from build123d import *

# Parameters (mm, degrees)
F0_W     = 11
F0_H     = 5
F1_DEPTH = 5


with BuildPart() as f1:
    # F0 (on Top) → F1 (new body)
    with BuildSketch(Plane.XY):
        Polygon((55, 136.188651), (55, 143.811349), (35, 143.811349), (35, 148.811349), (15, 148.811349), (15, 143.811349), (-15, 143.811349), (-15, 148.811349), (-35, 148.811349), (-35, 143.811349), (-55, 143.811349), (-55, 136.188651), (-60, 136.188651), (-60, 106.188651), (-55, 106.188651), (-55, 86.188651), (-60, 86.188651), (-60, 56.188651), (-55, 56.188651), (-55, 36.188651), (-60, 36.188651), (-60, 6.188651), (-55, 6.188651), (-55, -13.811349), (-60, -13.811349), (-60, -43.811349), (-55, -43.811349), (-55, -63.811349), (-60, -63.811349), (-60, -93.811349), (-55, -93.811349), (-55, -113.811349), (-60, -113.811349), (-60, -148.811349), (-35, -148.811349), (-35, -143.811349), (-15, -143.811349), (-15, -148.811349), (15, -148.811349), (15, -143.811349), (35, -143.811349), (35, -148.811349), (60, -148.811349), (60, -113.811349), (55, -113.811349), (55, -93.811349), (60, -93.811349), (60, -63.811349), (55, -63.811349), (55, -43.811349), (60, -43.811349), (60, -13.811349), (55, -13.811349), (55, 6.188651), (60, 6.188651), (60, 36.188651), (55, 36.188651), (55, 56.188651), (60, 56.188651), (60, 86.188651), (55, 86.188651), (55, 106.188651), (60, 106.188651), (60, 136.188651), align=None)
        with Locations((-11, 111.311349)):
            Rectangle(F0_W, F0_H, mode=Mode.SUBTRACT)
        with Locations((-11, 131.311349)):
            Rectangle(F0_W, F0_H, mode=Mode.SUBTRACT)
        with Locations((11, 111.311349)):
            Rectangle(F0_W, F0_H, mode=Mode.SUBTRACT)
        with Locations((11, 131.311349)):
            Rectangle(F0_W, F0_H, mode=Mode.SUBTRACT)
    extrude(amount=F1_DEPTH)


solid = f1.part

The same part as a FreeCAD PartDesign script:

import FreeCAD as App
import Part
import Sketcher
from FreeCAD import Vector

doc = App.newDocument("Part")
body = doc.addObject("PartDesign::Body", "Body")

sketch1 = body.newObject("Sketcher::SketchObject", "Sketch")
sketch1.AttachmentSupport = (doc.getObject("XY_Plane"), [""])
sketch1.MapMode = "FlatFace"
sketch1.addGeometry(Part.LineSegment(Vector(55, 136.188651, 0), Vector(55, 143.811349, 0)), False)
sketch1.addGeometry(Part.LineSegment(Vector(55, 143.811349, 0), Vector(35, 143.811349, 0)), False)
sketch1.addGeometry(Part.LineSegment(Vector(35, 143.811349, 0), Vector(35, 148.811349, 0)), False)
sketch1.addGeometry(Part.LineSegment(Vector(35, 148.811349, 0), Vector(15, 148.811349, 0)), False)
sketch1.addGeometry(Part.LineSegment(Vector(15, 148.811349, 0), Vector(15, 143.811349, 0)), False)
sketch1.addGeometry(Part.LineSegment(Vector(15, 143.811349, 0), Vector(-15, 143.811349, 0)), False)
sketch1.addGeometry(Part.LineSegment(Vector(-15, 143.811349, 0), Vector(-15, 148.811349, 0)), False)
sketch1.addGeometry(Part.LineSegment(Vector(-15, 148.811349, 0), Vector(-35, 148.811349, 0)), False)
sketch1.addGeometry(Part.LineSegment(Vector(-35, 148.811349, 0), Vector(-35, 143.811349, 0)), False)
sketch1.addGeometry(Part.LineSegment(Vector(-35, 143.811349, 0), Vector(-55, 143.811349, 0)), False)
sketch1.addGeometry(Part.LineSegment(Vector(-55, 143.811349, 0), Vector(-55, 136.188651, 0)), False)
sketch1.addGeometry(Part.LineSegment(Vector(-55, 136.188651, 0), Vector(-60, 136.188651, 0)), False)
sketch1.addGeometry(Part.LineSegment(Vector(-60, 136.188651, 0), Vector(-60, 106.188651, 0)), False)
sketch1.addGeometry(Part.LineSegment(Vector(-60, 106.188651, 0), Vector(-55, 106.188651, 0)), False)
sketch1.addGeometry(Part.LineSegment(Vector(-55, 106.188651, 0), Vector(-55, 86.188651, 0)), False)
sketch1.addGeometry(Part.LineSegment(Vector(-55, 86.188651, 0), Vector(-60, 86.188651, 0)), False)
sketch1.addGeometry(Part.LineSegment(Vector(-60, 86.188651, 0), Vector(-60, 56.188651, 0)), False)
sketch1.addGeometry(Part.LineSegment(Vector(-60, 56.188651, 0), Vector(-55, 56.188651, 0)), False)
sketch1.addGeometry(Part.LineSegment(Vector(-55, 56.188651, 0), Vector(-55, 36.188651, 0)), False)
sketch1.addGeometry(Part.LineSegment(Vector(-55, 36.188651, 0), Vector(-60, 36.188651, 0)), False)
sketch1.addGeometry(Part.LineSegment(Vector(-60, 36.188651, 0), Vector(-60, 6.188651, 0)), False)
sketch1.addGeometry(Part.LineSegment(Vector(-60, 6.188651, 0), Vector(-55, 6.188651, 0)), False)
sketch1.addGeometry(Part.LineSegment(Vector(-55, 6.188651, 0), Vector(-55, -13.811349, 0)), False)
sketch1.addGeometry(Part.LineSegment(Vector(-55, -13.811349, 0), Vector(-60, -13.811349, 0)), False)
sketch1.addGeometry(Part.LineSegment(Vector(-60, -13.811349, 0), Vector(-60, -43.811349, 0)), False)
sketch1.addGeometry(Part.LineSegment(Vector(-60, -43.811349, 0), Vector(-55, -43.811349, 0)), False)
sketch1.addGeometry(Part.LineSegment(Vector(-55, -43.811349, 0), Vector(-55, -63.811349, 0)), False)
sketch1.addGeometry(Part.LineSegment(Vector(-55, -63.811349, 0), Vector(-60, -63.811349, 0)), False)
sketch1.addGeometry(Part.LineSegment(Vector(-60, -63.811349, 0), Vector(-60, -93.811349, 0)), False)
sketch1.addGeometry(Part.LineSegment(Vector(-60, -93.811349, 0), Vector(-55, -93.811349, 0)), False)
sketch1.addGeometry(Part.LineSegment(Vector(-55, -93.811349, 0), Vector(-55, -113.811349, 0)), False)
sketch1.addGeometry(Part.LineSegment(Vector(-55, -113.811349, 0), Vector(-60, -113.811349, 0)), False)
sketch1.addGeometry(Part.LineSegment(Vector(-60, -113.811349, 0), Vector(-60, -148.811349, 0)), False)
sketch1.addGeometry(Part.LineSegment(Vector(-60, -148.811349, 0), Vector(-35, -148.811349, 0)), False)
sketch1.addGeometry(Part.LineSegment(Vector(-35, -148.811349, 0), Vector(-35, -143.811349, 0)), False)
sketch1.addGeometry(Part.LineSegment(Vector(-35, -143.811349, 0), Vector(-15, -143.811349, 0)), False)
sketch1.addGeometry(Part.LineSegment(Vector(-15, -143.811349, 0), Vector(-15, -148.811349, 0)), False)
sketch1.addGeometry(Part.LineSegment(Vector(-15, -148.811349, 0), Vector(15, -148.811349, 0)), False)
sketch1.addGeometry(Part.LineSegment(Vector(15, -148.811349, 0), Vector(15, -143.811349, 0)), False)
sketch1.addGeometry(Part.LineSegment(Vector(15, -143.811349, 0), Vector(35, -143.811349, 0)), False)
sketch1.addGeometry(Part.LineSegment(Vector(35, -143.811349, 0), Vector(35, -148.811349, 0)), False)
sketch1.addGeometry(Part.LineSegment(Vector(35, -148.811349, 0), Vector(60, -148.811349, 0)), False)
sketch1.addGeometry(Part.LineSegment(Vector(60, -148.811349, 0), Vector(60, -113.811349, 0)), False)
sketch1.addGeometry(Part.LineSegment(Vector(60, -113.811349, 0), Vector(55, -113.811349, 0)), False)
sketch1.addGeometry(Part.LineSegment(Vector(55, -113.811349, 0), Vector(55, -93.811349, 0)), False)
sketch1.addGeometry(Part.LineSegment(Vector(55, -93.811349, 0), Vector(60, -93.811349, 0)), False)
sketch1.addGeometry(Part.LineSegment(Vector(60, -93.811349, 0), Vector(60, -63.811349, 0)), False)
sketch1.addGeometry(Part.LineSegment(Vector(60, -63.811349, 0), Vector(55, -63.811349, 0)), False)
sketch1.addGeometry(Part.LineSegment(Vector(55, -63.811349, 0), Vector(55, -43.811349, 0)), False)
sketch1.addGeometry(Part.LineSegment(Vector(55, -43.811349, 0), Vector(60, -43.811349, 0)), False)
sketch1.addGeometry(Part.LineSegment(Vector(60, -43.811349, 0), Vector(60, -13.811349, 0)), False)
sketch1.addGeometry(Part.LineSegment(Vector(60, -13.811349, 0), Vector(55, -13.811349, 0)), False)
sketch1.addGeometry(Part.LineSegment(Vector(55, -13.811349, 0), Vector(55, 6.188651, 0)), False)
sketch1.addGeometry(Part.LineSegment(Vector(55, 6.188651, 0), Vector(60, 6.188651, 0)), False)
sketch1.addGeometry(Part.LineSegment(Vector(60, 6.188651, 0), Vector(60, 36.188651, 0)), False)
sketch1.addGeometry(Part.LineSegment(Vector(60, 36.188651, 0), Vector(55, 36.188651, 0)), False)
sketch1.addGeometry(Part.LineSegment(Vector(55, 36.188651, 0), Vector(55, 56.188651, 0)), False)
sketch1.addGeometry(Part.LineSegment(Vector(55, 56.188651, 0), Vector(60, 56.188651, 0)), False)
sketch1.addGeometry(Part.LineSegment(Vector(60, 56.188651, 0), Vector(60, 86.188651, 0)), False)
sketch1.addGeometry(Part.LineSegment(Vector(60, 86.188651, 0), Vector(55, 86.188651, 0)), False)
sketch1.addGeometry(Part.LineSegment(Vector(55, 86.188651, 0), Vector(55, 106.188651, 0)), False)
sketch1.addGeometry(Part.LineSegment(Vector(55, 106.188651, 0), Vector(60, 106.188651, 0)), False)
sketch1.addGeometry(Part.LineSegment(Vector(60, 106.188651, 0), Vector(60, 136.188651, 0)), False)
sketch1.addGeometry(Part.LineSegment(Vector(60, 136.188651, 0), Vector(55, 136.188651, 0)), False)
sketch1.addGeometry(Part.LineSegment(Vector(-5.5, 108.811349, 0), Vector(-16.5, 108.811349, 0)), False)
sketch1.addGeometry(Part.LineSegment(Vector(-16.5, 108.811349, 0), Vector(-16.5, 113.811349, 0)), False)
sketch1.addGeometry(Part.LineSegment(Vector(-16.5, 113.811349, 0), Vector(-5.5, 113.811349, 0)), False)
sketch1.addGeometry(Part.LineSegment(Vector(-5.5, 113.811349, 0), Vector(-5.5, 108.811349, 0)), False)
sketch1.addGeometry(Part.LineSegment(Vector(16.5, 108.811349, 0), Vector(5.5, 108.811349, 0)), False)
sketch1.addGeometry(Part.LineSegment(Vector(5.5, 108.811349, 0), Vector(5.5, 113.811349, 0)), False)
sketch1.addGeometry(Part.LineSegment(Vector(5.5, 113.811349, 0), Vector(16.5, 113.811349, 0)), False)
sketch1.addGeometry(Part.LineSegment(Vector(16.5, 113.811349, 0), Vector(16.5, 108.811349, 0)), False)
sketch1.addGeometry(Part.LineSegment(Vector(-5.5, 128.811349, 0), Vector(-16.5, 128.811349, 0)), False)
sketch1.addGeometry(Part.LineSegment(Vector(-16.5, 128.811349, 0), Vector(-16.5, 133.811349, 0)), False)
sketch1.addGeometry(Part.LineSegment(Vector(-16.5, 133.811349, 0), Vector(-5.5, 133.811349, 0)), False)
sketch1.addGeometry(Part.LineSegment(Vector(-5.5, 133.811349, 0), Vector(-5.5, 128.811349, 0)), False)
sketch1.addGeometry(Part.LineSegment(Vector(16.5, 128.811349, 0), Vector(5.5, 128.811349, 0)), False)
sketch1.addGeometry(Part.LineSegment(Vector(5.5, 128.811349, 0), Vector(5.5, 133.811349, 0)), False)
sketch1.addGeometry(Part.LineSegment(Vector(5.5, 133.811349, 0), Vector(16.5, 133.811349, 0)), False)
sketch1.addGeometry(Part.LineSegment(Vector(16.5, 133.811349, 0), Vector(16.5, 128.811349, 0)), False)
sketch1.addConstraint(Sketcher.Constraint("Coincident", 0, 2, 1, 1))
sketch1.addConstraint(Sketcher.Constraint("Coincident", 1, 2, 2, 1))
sketch1.addConstraint(Sketcher.Constraint("Coincident", 2, 2, 3, 1))
sketch1.addConstraint(Sketcher.Constraint("Coincident", 3, 2, 4, 1))
sketch1.addConstraint(Sketcher.Constraint("Coincident", 4, 2, 5, 1))
sketch1.addConstraint(Sketcher.Constraint("Coincident", 5, 2, 6, 1))
sketch1.addConstraint(Sketcher.Constraint("Coincident", 6, 2, 7, 1))
sketch1.addConstraint(Sketcher.Constraint("Coincident", 7, 2, 8, 1))
sketch1.addConstraint(Sketcher.Constraint("Coincident", 8, 2, 9, 1))
sketch1.addConstraint(Sketcher.Constraint("Coincident", 9, 2, 10, 1))
sketch1.addConstraint(Sketcher.Constraint("Coincident", 10, 2, 11, 1))
sketch1.addConstraint(Sketcher.Constraint("Coincident", 11, 2, 12, 1))
sketch1.addConstraint(Sketcher.Constraint("Coincident", 12, 2, 13, 1))
sketch1.addConstraint(Sketcher.Constraint("Coincident", 13, 2, 14, 1))
sketch1.addConstraint(Sketcher.Constraint("Coincident", 14, 2, 15, 1))
sketch1.addConstraint(Sketcher.Constraint("Coincident", 15, 2, 16, 1))
sketch1.addConstraint(Sketcher.Constraint("Coincident", 16, 2, 17, 1))
sketch1.addConstraint(Sketcher.Constraint("Coincident", 17, 2, 18, 1))
sketch1.addConstraint(Sketcher.Constraint("Coincident", 18, 2, 19, 1))
sketch1.addConstraint(Sketcher.Constraint("Coincident", 19, 2, 20, 1))
sketch1.addConstraint(Sketcher.Constraint("Coincident", 20, 2, 21, 1))
sketch1.addConstraint(Sketcher.Constraint("Coincident", 21, 2, 22, 1))
sketch1.addConstraint(Sketcher.Constraint("Coincident", 22, 2, 23, 1))
sketch1.addConstraint(Sketcher.Constraint("Coincident", 23, 2, 24, 1))
sketch1.addConstraint(Sketcher.Constraint("Coincident", 24, 2, 25, 1))
sketch1.addConstraint(Sketcher.Constraint("Coincident", 25, 2, 26, 1))
sketch1.addConstraint(Sketcher.Constraint("Coincident", 26, 2, 27, 1))
sketch1.addConstraint(Sketcher.Constraint("Coincident", 27, 2, 28, 1))
sketch1.addConstraint(Sketcher.Constraint("Coincident", 28, 2, 29, 1))
sketch1.addConstraint(Sketcher.Constraint("Coincident", 29, 2, 30, 1))
sketch1.addConstraint(Sketcher.Constraint("Coincident", 30, 2, 31, 1))
sketch1.addConstraint(Sketcher.Constraint("Coincident", 31, 2, 32, 1))
sketch1.addConstraint(Sketcher.Constraint("Coincident", 32, 2, 33, 1))
sketch1.addConstraint(Sketcher.Constraint("Coincident", 33, 2, 34, 1))
sketch1.addConstraint(Sketcher.Constraint("Coincident", 34, 2, 35, 1))
sketch1.addConstraint(Sketcher.Constraint("Coincident", 35, 2, 36, 1))
sketch1.addConstraint(Sketcher.Constraint("Coincident", 36, 2, 37, 1))
sketch1.addConstraint(Sketcher.Constraint("Coincident", 37, 2, 38, 1))
sketch1.addConstraint(Sketcher.Constraint("Coincident", 38, 2, 39, 1))
sketch1.addConstraint(Sketcher.Constraint("Coincident", 39, 2, 40, 1))
sketch1.addConstraint(Sketcher.Constraint("Coincident", 40, 2, 41, 1))
sketch1.addConstraint(Sketcher.Constraint("Coincident", 41, 2, 42, 1))
sketch1.addConstraint(Sketcher.Constraint("Coincident", 42, 2, 43, 1))
sketch1.addConstraint(Sketcher.Constraint("Coincident", 43, 2, 44, 1))
sketch1.addConstraint(Sketcher.Constraint("Coincident", 44, 2, 45, 1))
sketch1.addConstraint(Sketcher.Constraint("Coincident", 45, 2, 46, 1))
sketch1.addConstraint(Sketcher.Constraint("Coincident", 46, 2, 47, 1))
sketch1.addConstraint(Sketcher.Constraint("Coincident", 47, 2, 48, 1))
sketch1.addConstraint(Sketcher.Constraint("Coincident", 48, 2, 49, 1))
sketch1.addConstraint(Sketcher.Constraint("Coincident", 49, 2, 50, 1))
sketch1.addConstraint(Sketcher.Constraint("Coincident", 50, 2, 51, 1))
sketch1.addConstraint(Sketcher.Constraint("Coincident", 51, 2, 52, 1))
sketch1.addConstraint(Sketcher.Constraint("Coincident", 52, 2, 53, 1))
sketch1.addConstraint(Sketcher.Constraint("Coincident", 53, 2, 54, 1))
sketch1.addConstraint(Sketcher.Constraint("Coincident", 54, 2, 55, 1))
sketch1.addConstraint(Sketcher.Constraint("Coincident", 55, 2, 56, 1))
sketch1.addConstraint(Sketcher.Constraint("Coincident", 56, 2, 57, 1))
sketch1.addConstraint(Sketcher.Constraint("Coincident", 57, 2, 58, 1))
sketch1.addConstraint(Sketcher.Constraint("Coincident", 58, 2, 59, 1))
sketch1.addConstraint(Sketcher.Constraint("Coincident", 59, 2, 60, 1))
sketch1.addConstraint(Sketcher.Constraint("Coincident", 60, 2, 61, 1))
sketch1.addConstraint(Sketcher.Constraint("Coincident", 61, 2, 62, 1))
sketch1.addConstraint(Sketcher.Constraint("Coincident", 62, 2, 63, 1))
sketch1.addConstraint(Sketcher.Constraint("Coincident", 63, 2, 0, 1))
sketch1.addConstraint(Sketcher.Constraint("Coincident", 64, 2, 65, 1))
sketch1.addConstraint(Sketcher.Constraint("Coincident", 65, 2, 66, 1))
sketch1.addConstraint(Sketcher.Constraint("Coincident", 66, 2, 67, 1))
sketch1.addConstraint(Sketcher.Constraint("Coincident", 67, 2, 64, 1))
sketch1.addConstraint(Sketcher.Constraint("Coincident", 68, 2, 69, 1))
sketch1.addConstraint(Sketcher.Constraint("Coincident", 69, 2, 70, 1))
sketch1.addConstraint(Sketcher.Constraint("Coincident", 70, 2, 71, 1))
sketch1.addConstraint(Sketcher.Constraint("Coincident", 71, 2, 68, 1))
sketch1.addConstraint(Sketcher.Constraint("Coincident", 72, 2, 73, 1))
sketch1.addConstraint(Sketcher.Constraint("Coincident", 73, 2, 74, 1))
sketch1.addConstraint(Sketcher.Constraint("Coincident", 74, 2, 75, 1))
sketch1.addConstraint(Sketcher.Constraint("Coincident", 75, 2, 72, 1))
sketch1.addConstraint(Sketcher.Constraint("Coincident", 76, 2, 77, 1))
sketch1.addConstraint(Sketcher.Constraint("Coincident", 77, 2, 78, 1))
sketch1.addConstraint(Sketcher.Constraint("Coincident", 78, 2, 79, 1))
sketch1.addConstraint(Sketcher.Constraint("Coincident", 79, 2, 76, 1))
sketch1.addConstraint(Sketcher.Constraint("Vertical", 0))
sketch1.addConstraint(Sketcher.Constraint("Horizontal", 1))
sketch1.addConstraint(Sketcher.Constraint("Vertical", 2))
sketch1.addConstraint(Sketcher.Constraint("Horizontal", 3))
sketch1.addConstraint(Sketcher.Constraint("Vertical", 4))
sketch1.addConstraint(Sketcher.Constraint("Horizontal", 5))
sketch1.addConstraint(Sketcher.Constraint("Vertical", 6))
sketch1.addConstraint(Sketcher.Constraint("Horizontal", 7))
sketch1.addConstraint(Sketcher.Constraint("Vertical", 8))
sketch1.addConstraint(Sketcher.Constraint("Horizontal", 9))
sketch1.addConstraint(Sketcher.Constraint("Vertical", 10))
sketch1.addConstraint(Sketcher.Constraint("Horizontal", 11))
sketch1.addConstraint(Sketcher.Constraint("Vertical", 12))
sketch1.addConstraint(Sketcher.Constraint("Horizontal", 13))
sketch1.addConstraint(Sketcher.Constraint("Vertical", 14))
sketch1.addConstraint(Sketcher.Constraint("Horizontal", 15))
sketch1.addConstraint(Sketcher.Constraint("Vertical", 16))
sketch1.addConstraint(Sketcher.Constraint("Horizontal", 17))
sketch1.addConstraint(Sketcher.Constraint("Vertical", 18))
sketch1.addConstraint(Sketcher.Constraint("Horizontal", 19))
sketch1.addConstraint(Sketcher.Constraint("Vertical", 20))
sketch1.addConstraint(Sketcher.Constraint("Horizontal", 21))
sketch1.addConstraint(Sketcher.Constraint("Vertical", 22))
sketch1.addConstraint(Sketcher.Constraint("Horizontal", 23))
sketch1.addConstraint(Sketcher.Constraint("Vertical", 24))
sketch1.addConstraint(Sketcher.Constraint("Horizontal", 25))
sketch1.addConstraint(Sketcher.Constraint("Vertical", 26))
sketch1.addConstraint(Sketcher.Constraint("Horizontal", 27))
sketch1.addConstraint(Sketcher.Constraint("Vertical", 28))
sketch1.addConstraint(Sketcher.Constraint("Horizontal", 29))
sketch1.addConstraint(Sketcher.Constraint("Vertical", 30))
sketch1.addConstraint(Sketcher.Constraint("Horizontal", 31))
sketch1.addConstraint(Sketcher.Constraint("Vertical", 32))
sketch1.addConstraint(Sketcher.Constraint("Horizontal", 33))
sketch1.addConstraint(Sketcher.Constraint("Vertical", 34))
sketch1.addConstraint(Sketcher.Constraint("Horizontal", 35))
sketch1.addConstraint(Sketcher.Constraint("Vertical", 36))
sketch1.addConstraint(Sketcher.Constraint("Horizontal", 37))
sketch1.addConstraint(Sketcher.Constraint("Vertical", 38))
sketch1.addConstraint(Sketcher.Constraint("Horizontal", 39))
sketch1.addConstraint(Sketcher.Constraint("Vertical", 40))
sketch1.addConstraint(Sketcher.Constraint("Horizontal", 41))
sketch1.addConstraint(Sketcher.Constraint("Vertical", 42))
sketch1.addConstraint(Sketcher.Constraint("Horizontal", 43))
sketch1.addConstraint(Sketcher.Constraint("Vertical", 44))
sketch1.addConstraint(Sketcher.Constraint("Horizontal", 45))
sketch1.addConstraint(Sketcher.Constraint("Vertical", 46))
sketch1.addConstraint(Sketcher.Constraint("Horizontal", 47))
sketch1.addConstraint(Sketcher.Constraint("Vertical", 48))
sketch1.addConstraint(Sketcher.Constraint("Horizontal", 49))
sketch1.addConstraint(Sketcher.Constraint("Vertical", 50))
sketch1.addConstraint(Sketcher.Constraint("Horizontal", 51))
sketch1.addConstraint(Sketcher.Constraint("Vertical", 52))
sketch1.addConstraint(Sketcher.Constraint("Horizontal", 53))
sketch1.addConstraint(Sketcher.Constraint("Vertical", 54))
sketch1.addConstraint(Sketcher.Constraint("Horizontal", 55))
sketch1.addConstraint(Sketcher.Constraint("Vertical", 56))
sketch1.addConstraint(Sketcher.Constraint("Horizontal", 57))
sketch1.addConstraint(Sketcher.Constraint("Vertical", 58))
sketch1.addConstraint(Sketcher.Constraint("Horizontal", 59))
sketch1.addConstraint(Sketcher.Constraint("Vertical", 60))
sketch1.addConstraint(Sketcher.Constraint("Horizontal", 61))
sketch1.addConstraint(Sketcher.Constraint("Vertical", 62))
sketch1.addConstraint(Sketcher.Constraint("Horizontal", 63))
sketch1.addConstraint(Sketcher.Constraint("Horizontal", 64))
sketch1.addConstraint(Sketcher.Constraint("Vertical", 65))
sketch1.addConstraint(Sketcher.Constraint("Horizontal", 66))
sketch1.addConstraint(Sketcher.Constraint("Vertical", 67))
sketch1.addConstraint(Sketcher.Constraint("Horizontal", 68))
sketch1.addConstraint(Sketcher.Constraint("Vertical", 69))
sketch1.addConstraint(Sketcher.Constraint("Horizontal", 70))
sketch1.addConstraint(Sketcher.Constraint("Vertical", 71))
sketch1.addConstraint(Sketcher.Constraint("Horizontal", 72))
sketch1.addConstraint(Sketcher.Constraint("Vertical", 73))
sketch1.addConstraint(Sketcher.Constraint("Horizontal", 74))
sketch1.addConstraint(Sketcher.Constraint("Vertical", 75))
sketch1.addConstraint(Sketcher.Constraint("Horizontal", 76))
sketch1.addConstraint(Sketcher.Constraint("Vertical", 77))
sketch1.addConstraint(Sketcher.Constraint("Horizontal", 78))
sketch1.addConstraint(Sketcher.Constraint("Vertical", 79))
sketch1.addConstraint(Sketcher.Constraint("Symmetric", 2, 2, 33, 2, -1, 1))
sketch1.addConstraint(Sketcher.Constraint("Symmetric", 4, 2, 35, 2, -1, 1))
sketch1.addConstraint(Sketcher.Constraint("Symmetric", 6, 2, 37, 2, -1, 1))
sketch1.addConstraint(Sketcher.Constraint("Symmetric", 8, 2, 39, 2, -1, 1))
sketch1.addConstraint(Sketcher.Constraint("Symmetric", 3, 2, 6, 2, -2))
sketch1.addConstraint(Sketcher.Constraint("Symmetric", 1, 2, 8, 2, -2))
sketch1.addConstraint(Sketcher.Constraint("Symmetric", 32, 2, 41, 2, -2))
sketch1.addConstraint(Sketcher.Constraint("Symmetric", 30, 2, 43, 2, -2))
sketch1.addConstraint(Sketcher.Constraint("Symmetric", 28, 2, 45, 2, -2))
sketch1.addConstraint(Sketcher.Constraint("Symmetric", 26, 2, 47, 2, -2))
sketch1.addConstraint(Sketcher.Constraint("Symmetric", 24, 2, 49, 2, -2))
sketch1.addConstraint(Sketcher.Constraint("Symmetric", 22, 2, 51, 2, -2))
sketch1.addConstraint(Sketcher.Constraint("Symmetric", 20, 2, 53, 2, -2))
sketch1.addConstraint(Sketcher.Constraint("Symmetric", 18, 2, 55, 2, -2))
sketch1.addConstraint(Sketcher.Constraint("Symmetric", 16, 2, 57, 2, -2))
sketch1.addConstraint(Sketcher.Constraint("Symmetric", 14, 2, 59, 2, -2))
sketch1.addConstraint(Sketcher.Constraint("Symmetric", 12, 2, 61, 2, -2))
sketch1.addConstraint(Sketcher.Constraint("Symmetric", 10, 2, 63, 2, -2))
sketch1.addConstraint(Sketcher.Constraint("Symmetric", 67, 2, 68, 2, -2))
sketch1.addConstraint(Sketcher.Constraint("Symmetric", 65, 2, 70, 2, -2))
sketch1.addConstraint(Sketcher.Constraint("Symmetric", 75, 2, 76, 2, -2))
sketch1.addConstraint(Sketcher.Constraint("Symmetric", 73, 2, 78, 2, -2))
sketch1.addConstraint(Sketcher.Constraint("Horizontal", 1, 2, 4, 2))
sketch1.addConstraint(Sketcher.Constraint("Vertical", 10, 2, 13, 2))
sketch1.addConstraint(Sketcher.Constraint("Vertical", 12, 2, 15, 2))
sketch1.addConstraint(Sketcher.Constraint("Vertical", 14, 2, 17, 2))
sketch1.addConstraint(Sketcher.Constraint("Vertical", 16, 2, 19, 2))
sketch1.addConstraint(Sketcher.Constraint("Vertical", 18, 2, 21, 2))
sketch1.addConstraint(Sketcher.Constraint("Vertical", 20, 2, 23, 2))
sketch1.addConstraint(Sketcher.Constraint("Vertical", 22, 2, 25, 2))
sketch1.addConstraint(Sketcher.Constraint("Vertical", 24, 2, 27, 2))
sketch1.addConstraint(Sketcher.Constraint("Vertical", 26, 2, 29, 2))
sketch1.addConstraint(Sketcher.Constraint("Vertical", 28, 2, 31, 2))
sketch1.addConstraint(Sketcher.Constraint("Vertical", 65, 2, 72, 2))
sketch1.addConstraint(Sketcher.Constraint("Vertical", 67, 2, 74, 2))
sketch1.addConstraint(Sketcher.Constraint("Equal", 1, 3))
sketch1.addConstraint(Sketcher.Constraint("Equal", 63, 2))
sketch1.addConstraint(Sketcher.Constraint("Equal", 37, 12))
sketch1.addConstraint(Sketcher.Constraint("Equal", 39, 14))
sketch1.addConstraint(Sketcher.Constraint("Equal", 12, 16))
sketch1.addConstraint(Sketcher.Constraint("Equal", 14, 18))
sketch1.addConstraint(Sketcher.Constraint("Equal", 16, 20))
sketch1.addConstraint(Sketcher.Constraint("Equal", 18, 22))
sketch1.addConstraint(Sketcher.Constraint("Equal", 20, 24))
sketch1.addConstraint(Sketcher.Constraint("Equal", 22, 26))
sketch1.addConstraint(Sketcher.Constraint("Equal", 24, 28))
sketch1.addConstraint(Sketcher.Constraint("Equal", 26, 30))
sketch1.addConstraint(Sketcher.Constraint("Equal", 40, 65))
sketch1.addConstraint(Sketcher.Constraint("Equal", 71, 73))
sketch1.addConstraint(Sketcher.Constraint("DistanceX", 1, 2, 1, 1, 20.0))
sketch1.addConstraint(Sketcher.Constraint("DistanceX", 5, 2, 5, 1, 30.0))
sketch1.addConstraint(Sketcher.Constraint("DistanceX", 11, 2, 11, 1, 5.0))
sketch1.addConstraint(Sketcher.Constraint("DistanceX", 64, 2, 64, 1, 11.0))
sketch1.addConstraint(Sketcher.Constraint("DistanceY", 32, 2, 32, 1, 35.0))
sketch1.addConstraint(Sketcher.Constraint("DistanceX", 64, 2, -1, 1, 16.5))
sketch1.addConstraint(Sketcher.Constraint("DistanceY", 0, 1, 0, 2, 7.622698))
sketch1.addConstraint(Sketcher.Constraint("DistanceY", -1, 1, 64, 2, 108.811349))
sketch1.addConstraint(Sketcher.Constraint("DistanceY", -1, 1, 72, 2, 128.811349))
pad1 = body.newObject("PartDesign::Pad", "Pad")
pad1.Profile = sketch1
pad1.Length = 5

doc.recompute()
